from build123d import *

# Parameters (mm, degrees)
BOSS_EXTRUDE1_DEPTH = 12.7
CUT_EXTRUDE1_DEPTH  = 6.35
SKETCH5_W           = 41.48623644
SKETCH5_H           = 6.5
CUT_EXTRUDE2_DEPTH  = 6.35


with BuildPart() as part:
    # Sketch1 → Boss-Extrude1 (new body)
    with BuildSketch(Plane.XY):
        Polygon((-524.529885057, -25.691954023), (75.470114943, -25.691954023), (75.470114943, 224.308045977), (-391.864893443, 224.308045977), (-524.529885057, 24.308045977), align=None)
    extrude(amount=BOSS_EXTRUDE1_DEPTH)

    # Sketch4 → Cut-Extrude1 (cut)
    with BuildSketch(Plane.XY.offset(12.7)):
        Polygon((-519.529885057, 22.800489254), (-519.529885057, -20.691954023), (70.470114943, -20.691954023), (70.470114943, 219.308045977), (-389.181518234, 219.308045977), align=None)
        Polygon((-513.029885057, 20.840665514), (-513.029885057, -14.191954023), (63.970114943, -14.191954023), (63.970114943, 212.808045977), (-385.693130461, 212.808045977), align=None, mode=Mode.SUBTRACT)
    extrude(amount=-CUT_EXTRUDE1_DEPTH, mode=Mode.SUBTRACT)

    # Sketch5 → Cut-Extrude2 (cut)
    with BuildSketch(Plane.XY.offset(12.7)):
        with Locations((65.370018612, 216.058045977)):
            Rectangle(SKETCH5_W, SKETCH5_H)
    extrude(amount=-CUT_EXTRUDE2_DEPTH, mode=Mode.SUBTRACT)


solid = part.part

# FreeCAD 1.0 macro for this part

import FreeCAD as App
import Part
import Sketcher
from FreeCAD import Vector
Q = App.Units.Quantity

doc = App.newDocument("Part")
body = doc.addObject("PartDesign::Body", "Body")

# Sketch on XY plane
sketch1 = body.newObject("Sketcher::SketchObject", "Sketch")
sketch1.AttachmentSupport = (doc.getObject("XY_Plane"), [""])
sketch1.MapMode = "FlatFace"
sketch1.addGeometry([
    Part.LineSegment(Vector(-525, -26, 0), Vector(75, -26, 0)),  # 0
    Part.LineSegment(Vector(75, -26, 0), Vector(75, 224, 0)),  # 1
    Part.LineSegment(Vector(75, 224, 0), Vector(-392, 224, 0)),  # 2
    Part.LineSegment(Vector(-392, 224, 0), Vector(-525, 24, 0)),  # 3
    Part.LineSegment(Vector(-525, 24, 0), Vector(-525, -26, 0)),  # 4
], False)
sketch1.addConstraint([
    Sketcher.Constraint("Coincident", 0, 2, 1, 1),
    Sketcher.Constraint("Coincident", 1, 2, 2, 1),
    Sketcher.Constraint("Coincident", 2, 2, 3, 1),
    Sketcher.Constraint("Coincident", 3, 2, 4, 1),
    Sketcher.Constraint("Coincident", 4, 2, 0, 1),
    Sketcher.Constraint("Horizontal", 0),
    Sketcher.Constraint("Vertical", 1),
    Sketcher.Constraint("Horizontal", 2),
    Sketcher.Constraint("Vertical", 4),
    Sketcher.Constraint("DistanceX", 0, 1, 0, 2, Q("600 mm")),
    Sketcher.Constraint("DistanceY", 1, 1, 1, 2, Q("250 mm")),
    Sketcher.Constraint("DistanceY", 4, 2, 4, 1, Q("50 mm")),
    Sketcher.Constraint("Distance", 3, Q("240 mm")),
    Sketcher.Constraint("DistanceX", -1, 1, 0, 2, Q("75.470115 mm")),
    Sketcher.Constraint("DistanceY", 0, 2, -1, 1, Q("25.691954 mm")),
])
pad1 = body.newObject("PartDesign::Pad", "Pad")
pad1.Profile = sketch1
pad1.Length = 12.7

# Sketch on XY plane
sketch2 = body.newObject("Sketcher::SketchObject", "Sketch001")
sketch2.AttachmentSupport = (doc.getObject("XY_Plane"), [""])
sketch2.MapMode = "FlatFace"
sketch2.AttachmentOffset = App.Placement(Vector(0, 0, 12.7), App.Rotation())
sketch2.addGeometry([
    Part.LineSegment(Vector(-520, 23, 0), Vector(-520, -21, 0)),  # 0
    Part.LineSegment(Vector(-520, -21, 0), Vector(70, -21, 0)),  # 1
    Part.LineSegment(Vector(70, -21, 0), Vector(70, 219, 0)),  # 2
    Part.LineSegment(Vector(70, 219, 0), Vector(-389, 219, 0)),  # 3
    Part.LineSegment(Vector(-389, 219, 0), Vector(-520, 23, 0)),  # 4
    Part.LineSegment(Vector(-513, -14, 0), Vector(-513, 21, 0)),  # 5
    Part.LineSegment(Vector(-513, 21, 0), Vector(-386, 213, 0)),  # 6
    Part.LineSegment(Vector(-386, 213, 0), Vector(64, 213, 0)),  # 7
    Part.LineSegment(Vector(64, 213, 0), Vector(64, -14, 0)),  # 8
    Part.LineSegment(Vector(64, -14, 0), Vector(-513, -14, 0)),  # 9
], False)
sketch2.addConstraint([
    Sketcher.Constraint("Coincident", 0, 2, 1, 1),
    Sketcher.Constraint("Coincident", 1, 2, 2, 1),
    Sketcher.Constraint("Coincident", 2, 2, 3, 1),
    Sketcher.Constraint("Coincident", 3, 2, 4, 1),
    Sketcher.Constraint("Coincident", 4, 2, 0, 1),
    Sketcher.Constraint("Coincident", 5, 2, 6, 1),
    Sketcher.Constraint("Coincident", 6, 2, 7, 1),
    Sketcher.Constraint("Coincident", 7, 2, 8, 1),
    Sketcher.Constraint("Coincident", 8, 2, 9, 1),
    Sketcher.Constraint("Coincident", 9, 2, 5, 1),
    Sketcher.Constraint("Vertical", 0),
    Sketcher.Constraint("Horizontal", 1),
    Sketcher.Constraint("Vertical", 2),
    Sketcher.Constraint("Horizontal", 3),
    Sketcher.Constraint("Vertical", 5),
    Sketcher.Constraint("Horizontal", 7),
    Sketcher.Constraint("Vertical", 8),
    Sketcher.Constraint("Horizontal", 9),
    Sketcher.Constraint("Parallel", 4, 6),
    Sketcher.Constraint("DistanceX", 1, 1, 1, 2, Q("590 mm")),
    Sketcher.Constraint("DistanceX", 9, 2, 9, 1, Q("577 mm")),
    Sketcher.Constraint("DistanceY", 2, 1, 2, 2, Q("240 mm")),
    Sketcher.Constraint("DistanceY", 8, 2, 8, 1, Q("227 mm")),
    Sketcher.Constraint("DistanceX", 4, 2, 5, 2, Q("6.5 mm")),
    Sketcher.Constraint("DistanceY", 6, 2, 3, 2, Q("6.5 mm")),
    Sketcher.Constraint("DistanceY", 5, 1, 5, 2, Q("35.03262 mm")),
    Sketcher.Constraint("Distance", 4, Q("235.809068 mm")),
    Sketcher.Constraint("DistanceX", 3, 2, 3, 1, Q("459.651633 mm")),
    Sketcher.Constraint("DistanceX", 3, 2, -1, 1, Q("389.181518 mm")),
    Sketcher.Constraint("DistanceY", -1, 1, 4, 2, Q("22.800489 mm")),
])
pocket1 = body.newObject("PartDesign::Pocket", "Pocket")
pocket1.Profile = sketch2
pocket1.Length = 6.35

# Sketch on XY plane
sketch3 = body.newObject("Sketcher::SketchObject", "Sketch002")
sketch3.AttachmentSupport = (doc.getObject("XY_Plane"), [""])
sketch3.MapMode = "FlatFace"
sketch3.AttachmentOffset = App.Placement(Vector(0, 0, 12.7), App.Rotation())
sketch3.addGeometry([
    Part.LineSegment(Vector(45, 219, 0), Vector(45, 213, 0)),
    Part.LineSegment(Vector(45, 213, 0), Vector(86, 213, 0)),
    Part.LineSegment(Vector(86, 213, 0), Vector(86, 219, 0)),
    Part.LineSegment(Vector(86, 219, 0), Vector(45, 219, 0)),
], False)
sketch3.addConstraint([
    Sketcher.Constraint("Coincident", 0, 2, 1, 1),
    Sketcher.Constraint("Coincident", 1, 2, 2, 1),
    Sketcher.Constraint("Coincident", 2, 2, 3, 1),
    Sketcher.Constraint("Coincident", 3, 2, 0, 1),
    Sketcher.Constraint("Vertical", 0),
    Sketcher.Constraint("Horizontal", 1),
    Sketcher.Constraint("Vertical", 2),
    Sketcher.Constraint("Horizontal", 3),
    Sketcher.Constraint("DistanceY", 0, 2, 0, 1, Q("6.5 mm")),
    Sketcher.Constraint("DistanceX", -1, 1, 0, 2, Q("44.6269 mm")),
    Sketcher.Constraint("DistanceX", 1, 1, 1, 2, Q("41.486236 mm")),
    Sketcher.Constraint("DistanceY", -1, 1, 0, 2, Q("212.808046 mm")),
])
pocket2 = body.newObject("PartDesign::Pocket", "Pocket001")
pocket2.Profile = sketch3
pocket2.Length = 6.35

doc.recompute()
